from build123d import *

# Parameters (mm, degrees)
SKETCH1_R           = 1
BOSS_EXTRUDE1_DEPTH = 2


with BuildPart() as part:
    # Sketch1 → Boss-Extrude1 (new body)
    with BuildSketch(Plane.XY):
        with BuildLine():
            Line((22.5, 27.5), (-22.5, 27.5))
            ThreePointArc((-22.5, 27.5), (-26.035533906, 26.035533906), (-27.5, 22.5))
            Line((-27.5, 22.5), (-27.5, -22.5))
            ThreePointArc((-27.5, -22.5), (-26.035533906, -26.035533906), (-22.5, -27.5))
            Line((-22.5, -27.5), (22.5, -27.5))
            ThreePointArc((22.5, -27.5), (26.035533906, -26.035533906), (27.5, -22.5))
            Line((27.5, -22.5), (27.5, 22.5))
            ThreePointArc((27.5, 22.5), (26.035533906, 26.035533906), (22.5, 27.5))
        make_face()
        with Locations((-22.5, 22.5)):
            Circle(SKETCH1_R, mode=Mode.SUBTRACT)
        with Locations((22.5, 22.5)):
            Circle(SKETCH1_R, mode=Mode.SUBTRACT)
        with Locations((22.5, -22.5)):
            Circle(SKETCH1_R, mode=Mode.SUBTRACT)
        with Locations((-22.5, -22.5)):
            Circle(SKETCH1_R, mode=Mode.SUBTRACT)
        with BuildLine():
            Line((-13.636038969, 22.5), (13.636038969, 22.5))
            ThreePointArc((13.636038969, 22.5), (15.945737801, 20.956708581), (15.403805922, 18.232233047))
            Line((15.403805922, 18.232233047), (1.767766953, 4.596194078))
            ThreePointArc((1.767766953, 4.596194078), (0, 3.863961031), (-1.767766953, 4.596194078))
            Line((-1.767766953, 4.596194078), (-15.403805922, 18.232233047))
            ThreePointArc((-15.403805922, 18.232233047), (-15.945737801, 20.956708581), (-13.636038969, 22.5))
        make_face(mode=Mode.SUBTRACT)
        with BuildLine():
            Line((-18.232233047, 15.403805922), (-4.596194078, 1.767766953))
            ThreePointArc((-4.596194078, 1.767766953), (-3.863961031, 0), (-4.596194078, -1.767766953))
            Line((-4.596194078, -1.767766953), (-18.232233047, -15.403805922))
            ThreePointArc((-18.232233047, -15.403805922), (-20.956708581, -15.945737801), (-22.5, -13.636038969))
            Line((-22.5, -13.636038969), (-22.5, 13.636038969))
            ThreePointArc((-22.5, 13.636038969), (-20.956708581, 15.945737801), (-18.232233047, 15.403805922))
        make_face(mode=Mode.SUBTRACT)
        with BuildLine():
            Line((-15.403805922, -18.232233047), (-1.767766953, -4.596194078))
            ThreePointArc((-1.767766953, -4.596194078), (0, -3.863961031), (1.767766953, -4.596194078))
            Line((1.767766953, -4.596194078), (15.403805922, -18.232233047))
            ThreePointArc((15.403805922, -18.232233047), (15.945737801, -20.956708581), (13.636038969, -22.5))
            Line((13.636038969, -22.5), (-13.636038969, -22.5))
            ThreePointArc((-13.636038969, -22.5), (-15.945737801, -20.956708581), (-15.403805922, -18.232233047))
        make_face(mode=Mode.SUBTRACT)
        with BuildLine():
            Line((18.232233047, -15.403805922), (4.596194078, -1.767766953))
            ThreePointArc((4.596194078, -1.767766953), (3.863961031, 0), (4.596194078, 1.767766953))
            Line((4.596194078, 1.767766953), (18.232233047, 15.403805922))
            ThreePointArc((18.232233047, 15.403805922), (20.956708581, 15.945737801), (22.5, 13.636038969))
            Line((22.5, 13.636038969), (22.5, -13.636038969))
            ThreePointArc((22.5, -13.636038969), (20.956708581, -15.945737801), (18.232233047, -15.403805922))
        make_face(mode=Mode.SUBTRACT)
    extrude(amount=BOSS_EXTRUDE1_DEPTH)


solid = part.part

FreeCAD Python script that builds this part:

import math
import FreeCAD as App
import Part
import Sketcher

V = App.Vector

doc = App.newDocument("Part")
body = doc.addObject("PartDesign::Body", "Body")

# Sketch on XY plane
sketch1 = body.newObject("Sketcher::SketchObject", "Sketch")
sketch1.AttachmentSupport = (doc.getObject("XY_Plane"), [""])
sketch1.MapMode = "FlatFace"
sketch1.addGeometry(Part.LineSegment(V(22.5, 27.5, 0), V(-22.5, 27.5, 0)), False)
sketch1.addGeometry(Part.ArcOfCircle(Part.Circle(V(-22.5, 22.5, 0), V(0, 0, 1), 5), math.radians(90), math.radians(180)), False)
sketch1.addGeometry(Part.LineSegment(V(-27.5, 22.5, 0), V(-27.5, -22.5, 0)), False)
sketch1.addGeometry(Part.ArcOfCircle(Part.Circle(V(-22.5, -22.5, 0), V(0, 0, 1), 5), math.radians(180), math.radians(270)), False)
sketch1.addGeometry(Part.LineSegment(V(-22.5, -27.5, 0), V(22.5, -27.5, 0)), False)
sketch1.addGeometry(Part.ArcOfCircle(Part.Circle(V(22.5, -22.5, 0), V(0, 0, 1), 5), math.radians(-90), math.radians(0)), False)
sketch1.addGeometry(Part.LineSegment(V(27.5, -22.5, 0), V(27.5, 22.5, 0)), False)
sketch1.addGeometry(Part.ArcOfCircle(Part.Circle(V(22.5, 22.5, 0), V(0, 0, 1), 5), math.radians(0), math.radians(90)), False)
sketch1.addGeometry(Part.Circle(V(-22.5, -22.5, 0), V(0, 0, 1), 1), False)
sketch1.addGeometry(Part.ArcOfCircle(Part.Circle(V(-13.6, -20, 0), V(0, 0, 1), 2.5), math.radians(135), math.radians(270)), False)
sketch1.addGeometry(Part.LineSegment(V(-15.4, -18.2, 0), V(-1.8, -4.6, 0)), False)
sketch1.addGeometry(Part.ArcOfCircle(Part.Circle(V(0, -6.4, 0), V(0, 0, 1), 2.5), math.radians(45), math.radians(135)), False)
sketch1.addGeometry(Part.LineSegment(V(1.8, -4.6, 0), V(15.4, -18.2, 0)), False)
sketch1.addGeometry(Part.ArcOfCircle(Part.Circle(V(13.6, -20, 0), V(0, 0, 1), 2.5), math.radians(-90), math.radians(45)), False)
sketch1.addGeometry(Part.LineSegment(V(13.6, -22.5, 0), V(-13.6, -22.5, 0)), False)
sketch1.addGeometry(Part.Circle(V(22.5, -22.5, 0), V(0, 0, 1), 1), False)
sketch1.addGeometry(Part.ArcOfCircle(Part.Circle(V(-20, 13.6, 0), V(0, 0, 1), 2.5), math.radians(45), math.radians(180)), False)
sketch1.addGeometry(Part.LineSegment(V(-18.2, 15.4, 0), V(-4.6, 1.8, 0)), False)
sketch1.addGeometry(Part.ArcOfCircle(Part.Circle(V(-6.4, 0, 0), V(0, 0, 1), 2.5), math.radians(-45), math.radians(45)), False)
sketch1.addGeometry(Part.LineSegment(V(-4.6, -1.8, 0), V(-18.2, -15.4, 0)), False)
sketch1.addGeometry(Part.ArcOfCircle(Part.Circle(V(-20, -13.6, 0), V(0, 0, 1), 2.5), math.radians(180), math.radians(315)), False)
sketch1.addGeometry(Part.LineSegment(V(-22.5, -13.6, 0), V(-22.5, 13.6, 0)), False)
sketch1.addGeometry(Part.Circle(V(-22.5, 22.5, 0), V(0, 0, 1), 1), False)
sketch1.addGeometry(Part.ArcOfCircle(Part.Circle(V(20, -13.6, 0), V(0, 0, 1), 2.5), math.radians(-135), math.radians(0)), False)
sketch1.addGeometry(Part.LineSegment(V(18.2, -15.4, 0), V(4.6, -1.8, 0)), False)
sketch1.addGeometry(Part.ArcOfCircle(Part.Circle(V(6.4, 0, 0), V(0, 0, 1), 2.5), math.radians(135), math.radians(225)), False)
sketch1.addGeometry(Part.LineSegment(V(4.6, 1.8, 0), V(18.2, 15.4, 0)), False)
sketch1.addGeometry(Part.ArcOfCircle(Part.Circle(V(20, 13.6, 0), V(0, 0, 1), 2.5), math.radians(0), math.radians(135)), False)
sketch1.addGeometry(Part.LineSegment(V(22.5, 13.6, 0), V(22.5, -13.6, 0)), False)
sketch1.addGeometry(Part.ArcOfCircle(Part.Circle(V(-13.6, 20, 0), V(0, 0, 1), 2.5), math.radians(90), math.radians(225)), False)
sketch1.addGeometry(Part.LineSegment(V(-13.6, 22.5, 0), V(13.6, 22.5, 0)), False)
sketch1.addGeometry(Part.ArcOfCircle(Part.Circle(V(13.6, 20, 0), V(0, 0, 1), 2.5), math.radians(-45), math.radians(90)), False)
sketch1.addGeometry(Part.LineSegment(V(15.4, 18.2, 0), V(1.8, 4.6, 0)), False)
sketch1.addGeometry(Part.ArcOfCircle(Part.Circle(V(0, 6.4, 0), V(0, 0, 1), 2.5), math.radians(-135), math.radians(-45)), False)
sketch1.addGeometry(Part.LineSegment(V(-1.8, 4.6, 0), V(-15.4, 18.2, 0)), False)
sketch1.addGeometry(Part.Circle(V(22.5, 22.5, 0), V(0, 0, 1), 1), False)
sketch1.addConstraint(Sketcher.Constraint("Tangent", 0, 2, 1, 1))
sketch1.addConstraint(Sketcher.Constraint("Tangent", 1, 2, 2, 1))
sketch1.addConstraint(Sketcher.Constraint("Tangent", 2, 2, 3, 1))
sketch1.addConstraint(Sketcher.Constraint("Tangent", 3, 2, 4, 1))
sketch1.addConstraint(Sketcher.Constraint("Tangent", 4, 2, 5, 1))
sketch1.addConstraint(Sketcher.Constraint("Tangent", 5, 2, 6, 1))
sketch1.addConstraint(Sketcher.Constraint("Tangent", 6, 2, 7, 1))
sketch1.addConstraint(Sketcher.Constraint("Tangent", 7, 2, 0, 1))
sketch1.addConstraint(Sketcher.Constraint("Tangent", 9, 1, 10, 1))
sketch1.addConstraint(Sketcher.Constraint("Tangent", 10, 2, 11, 2))
sketch1.addConstraint(Sketcher.Constraint("Tangent", 11, 1, 12, 1))
sketch1.addConstraint(Sketcher.Constraint("Tangent", 12, 2, 13, 2))
sketch1.addConstraint(Sketcher.Constraint("Tangent", 13, 1, 14, 1))
sketch1.addConstraint(Sketcher.Constraint("Tangent", 14, 2, 9, 2))
sketch1.addConstraint(Sketcher.Constraint("Tangent", 16, 1, 17, 1))
sketch1.addConstraint(Sketcher.Constraint("Tangent", 17, 2, 18, 2))
sketch1.addConstraint(Sketcher.Constraint("Tangent", 18, 1, 19, 1))
sketch1.addConstraint(Sketcher.Constraint("Tangent", 19, 2, 20, 2))
sketch1.addConstraint(Sketcher.Constraint("Tangent", 20, 1, 21, 1))
sketch1.addConstraint(Sketcher.Constraint("Tangent", 21, 2, 16, 2))
sketch1.addConstraint(Sketcher.Constraint("Tangent", 23, 1, 24, 1))
sketch1.addConstraint(Sketcher.Constraint("Tangent", 24, 2, 25, 2))
sketch1.addConstraint(Sketcher.Constraint("Tangent", 25, 1, 26, 1))
sketch1.addConstraint(Sketcher.Constraint("Tangent", 26, 2, 27, 2))
sketch1.addConstraint(Sketcher.Constraint("Tangent", 27, 1, 28, 1))
sketch1.addConstraint(Sketcher.Constraint("Tangent", 28, 2, 23, 2))
sketch1.addConstraint(Sketcher.Constraint("Tangent", 29, 1, 30, 1))
sketch1.addConstraint(Sketcher.Constraint("Tangent", 30, 2, 31, 2))
sketch1.addConstraint(Sketcher.Constraint("Tangent", 31, 1, 32, 1))
sketch1.addConstraint(Sketcher.Constraint("Tangent", 32, 2, 33, 2))
sketch1.addConstraint(Sketcher.Constraint("Tangent", 33, 1, 34, 1))
sketch1.addConstraint(Sketcher.Constraint("Tangent", 34, 2, 29, 2))
sketch1.addConstraint(Sketcher.Constraint("Horizontal", 0))
sketch1.addConstraint(Sketcher.Constraint("Vertical", 2))
sketch1.addConstraint(Sketcher.Constraint("Horizontal", 4))
sketch1.addConstraint(Sketcher.Constraint("Vertical", 6))
sketch1.addConstraint(Sketcher.Constraint("Horizontal", 14))
sketch1.addConstraint(Sketcher.Constraint("Vertical", 21))
sketch1.addConstraint(Sketcher.Constraint("Vertical", 28))
sketch1.addConstraint(Sketcher.Constraint("Horizontal", 30))
sketch1.addConstraint(Sketcher.Constraint("Coincident", 8, 3, 3, 3))
sketch1.addConstraint(Sketcher.Constraint("Coincident", 15, 3, 5, 3))
sketch1.addConstraint(Sketcher.Constraint("Coincident", 22, 3, 1, 3))
sketch1.addConstraint(Sketcher.Constraint("Coincident", 35, 3, 7, 3))
sketch1.addConstraint(Sketcher.Constraint("Equal", 1, 3))
sketch1.addConstraint(Sketcher.Constraint("Equal", 3, 5))
sketch1.addConstraint(Sketcher.Constraint("Equal", 5, 7))
sketch1.addConstraint(Sketcher.Constraint("Equal", 9, 11))
sketch1.addConstraint(Sketcher.Constraint("Equal", 11, 13))
sketch1.addConstraint(Sketcher.Constraint("Equal", 8, 15))
sketch1.addConstraint(Sketcher.Constraint("Equal", 13, 16))
sketch1.addConstraint(Sketcher.Constraint("Equal", 16, 18))
sketch1.addConstraint(Sketcher.Constraint("Equal", 18, 20))
sketch1.addConstraint(Sketcher.Constraint("Equal", 15, 22))
sketch1.addConstraint(Sketcher.Constraint("Equal", 20, 23))
sketch1.addConstraint(Sketcher.Constraint("Equal", 23, 25))
sketch1.addConstraint(Sketcher.Constraint("Equal", 25, 27))
sketch1.addConstraint(Sketcher.Constraint("Equal", 27, 29))
sketch1.addConstraint(Sketcher.Constraint("Equal", 29, 31))
sketch1.addConstraint(Sketcher.Constraint("Equal", 31, 33))
sketch1.addConstraint(Sketcher.Constraint("Equal", 22, 35))
sketch1.addConstraint(Sketcher.Constraint("Symmetric", 1, 3, 5, 3, -1, 1))
sketch1.addConstraint(Sketcher.Constraint("Symmetric", 16, 3, 23, 3, -1, 1))
sketch1.addConstraint(Sketcher.Constraint("Symmetric", 18, 3, 25, 3, -1, 1))
sketch1.addConstraint(Sketcher.Constraint("Symmetric", 13, 3, 29, 3, -1, 1))
sketch1.addConstraint(Sketcher.Constraint("Symmetric", 11, 3, 33, 3, -1, 1))
sketch1.addConstraint(Sketcher.Constraint("Symmetric", 10, 2, 11, 1, -2))
sketch1.addConstraint(Sketcher.Constraint("Symmetric", 19, 2, 23, 1, -2))
sketch1.addConstraint(Sketcher.Constraint("Perpendicular", 10, 12))
sketch1.addConstraint(Sketcher.Constraint("Parallel", 12, 17))
sketch1.addConstraint(Sketcher.Constraint("Perpendicular", 24, 26))
sketch1.addConstraint(Sketcher.Constraint("Parallel", 26, 32))
sketch1.addConstraint(Sketcher.Constraint("Horizontal", 5, 2, 13, 1))
sketch1.addConstraint(Sketcher.Constraint("Vertical", 3, 2, 20, 1))
sketch1.addConstraint(Sketcher.Constraint("Equal", 4, 2))
sketch1.addConstraint(Sketcher.Constraint("Equal", 30, 21))
sketch1.addConstraint(Sketcher.Constraint("Diameter", 8, 2.0))
sketch1.addConstraint(Sketcher.Constraint("Radius", 1, 5.0))
sketch1.addConstraint(Sketcher.Constraint("Radius", 9, 2.5))
sketch1.addConstraint(Sketcher.Constraint("DistanceX", 0, 2, 0, 1, 45.0))
sketch1.addConstraint(Sketcher.Constraint("Distance", 10, 19.284271))
pad1 = body.newObject("PartDesign::Pad", "Pad")
pad1.Profile = sketch1
pad1.Length = 2

doc.recompute()
